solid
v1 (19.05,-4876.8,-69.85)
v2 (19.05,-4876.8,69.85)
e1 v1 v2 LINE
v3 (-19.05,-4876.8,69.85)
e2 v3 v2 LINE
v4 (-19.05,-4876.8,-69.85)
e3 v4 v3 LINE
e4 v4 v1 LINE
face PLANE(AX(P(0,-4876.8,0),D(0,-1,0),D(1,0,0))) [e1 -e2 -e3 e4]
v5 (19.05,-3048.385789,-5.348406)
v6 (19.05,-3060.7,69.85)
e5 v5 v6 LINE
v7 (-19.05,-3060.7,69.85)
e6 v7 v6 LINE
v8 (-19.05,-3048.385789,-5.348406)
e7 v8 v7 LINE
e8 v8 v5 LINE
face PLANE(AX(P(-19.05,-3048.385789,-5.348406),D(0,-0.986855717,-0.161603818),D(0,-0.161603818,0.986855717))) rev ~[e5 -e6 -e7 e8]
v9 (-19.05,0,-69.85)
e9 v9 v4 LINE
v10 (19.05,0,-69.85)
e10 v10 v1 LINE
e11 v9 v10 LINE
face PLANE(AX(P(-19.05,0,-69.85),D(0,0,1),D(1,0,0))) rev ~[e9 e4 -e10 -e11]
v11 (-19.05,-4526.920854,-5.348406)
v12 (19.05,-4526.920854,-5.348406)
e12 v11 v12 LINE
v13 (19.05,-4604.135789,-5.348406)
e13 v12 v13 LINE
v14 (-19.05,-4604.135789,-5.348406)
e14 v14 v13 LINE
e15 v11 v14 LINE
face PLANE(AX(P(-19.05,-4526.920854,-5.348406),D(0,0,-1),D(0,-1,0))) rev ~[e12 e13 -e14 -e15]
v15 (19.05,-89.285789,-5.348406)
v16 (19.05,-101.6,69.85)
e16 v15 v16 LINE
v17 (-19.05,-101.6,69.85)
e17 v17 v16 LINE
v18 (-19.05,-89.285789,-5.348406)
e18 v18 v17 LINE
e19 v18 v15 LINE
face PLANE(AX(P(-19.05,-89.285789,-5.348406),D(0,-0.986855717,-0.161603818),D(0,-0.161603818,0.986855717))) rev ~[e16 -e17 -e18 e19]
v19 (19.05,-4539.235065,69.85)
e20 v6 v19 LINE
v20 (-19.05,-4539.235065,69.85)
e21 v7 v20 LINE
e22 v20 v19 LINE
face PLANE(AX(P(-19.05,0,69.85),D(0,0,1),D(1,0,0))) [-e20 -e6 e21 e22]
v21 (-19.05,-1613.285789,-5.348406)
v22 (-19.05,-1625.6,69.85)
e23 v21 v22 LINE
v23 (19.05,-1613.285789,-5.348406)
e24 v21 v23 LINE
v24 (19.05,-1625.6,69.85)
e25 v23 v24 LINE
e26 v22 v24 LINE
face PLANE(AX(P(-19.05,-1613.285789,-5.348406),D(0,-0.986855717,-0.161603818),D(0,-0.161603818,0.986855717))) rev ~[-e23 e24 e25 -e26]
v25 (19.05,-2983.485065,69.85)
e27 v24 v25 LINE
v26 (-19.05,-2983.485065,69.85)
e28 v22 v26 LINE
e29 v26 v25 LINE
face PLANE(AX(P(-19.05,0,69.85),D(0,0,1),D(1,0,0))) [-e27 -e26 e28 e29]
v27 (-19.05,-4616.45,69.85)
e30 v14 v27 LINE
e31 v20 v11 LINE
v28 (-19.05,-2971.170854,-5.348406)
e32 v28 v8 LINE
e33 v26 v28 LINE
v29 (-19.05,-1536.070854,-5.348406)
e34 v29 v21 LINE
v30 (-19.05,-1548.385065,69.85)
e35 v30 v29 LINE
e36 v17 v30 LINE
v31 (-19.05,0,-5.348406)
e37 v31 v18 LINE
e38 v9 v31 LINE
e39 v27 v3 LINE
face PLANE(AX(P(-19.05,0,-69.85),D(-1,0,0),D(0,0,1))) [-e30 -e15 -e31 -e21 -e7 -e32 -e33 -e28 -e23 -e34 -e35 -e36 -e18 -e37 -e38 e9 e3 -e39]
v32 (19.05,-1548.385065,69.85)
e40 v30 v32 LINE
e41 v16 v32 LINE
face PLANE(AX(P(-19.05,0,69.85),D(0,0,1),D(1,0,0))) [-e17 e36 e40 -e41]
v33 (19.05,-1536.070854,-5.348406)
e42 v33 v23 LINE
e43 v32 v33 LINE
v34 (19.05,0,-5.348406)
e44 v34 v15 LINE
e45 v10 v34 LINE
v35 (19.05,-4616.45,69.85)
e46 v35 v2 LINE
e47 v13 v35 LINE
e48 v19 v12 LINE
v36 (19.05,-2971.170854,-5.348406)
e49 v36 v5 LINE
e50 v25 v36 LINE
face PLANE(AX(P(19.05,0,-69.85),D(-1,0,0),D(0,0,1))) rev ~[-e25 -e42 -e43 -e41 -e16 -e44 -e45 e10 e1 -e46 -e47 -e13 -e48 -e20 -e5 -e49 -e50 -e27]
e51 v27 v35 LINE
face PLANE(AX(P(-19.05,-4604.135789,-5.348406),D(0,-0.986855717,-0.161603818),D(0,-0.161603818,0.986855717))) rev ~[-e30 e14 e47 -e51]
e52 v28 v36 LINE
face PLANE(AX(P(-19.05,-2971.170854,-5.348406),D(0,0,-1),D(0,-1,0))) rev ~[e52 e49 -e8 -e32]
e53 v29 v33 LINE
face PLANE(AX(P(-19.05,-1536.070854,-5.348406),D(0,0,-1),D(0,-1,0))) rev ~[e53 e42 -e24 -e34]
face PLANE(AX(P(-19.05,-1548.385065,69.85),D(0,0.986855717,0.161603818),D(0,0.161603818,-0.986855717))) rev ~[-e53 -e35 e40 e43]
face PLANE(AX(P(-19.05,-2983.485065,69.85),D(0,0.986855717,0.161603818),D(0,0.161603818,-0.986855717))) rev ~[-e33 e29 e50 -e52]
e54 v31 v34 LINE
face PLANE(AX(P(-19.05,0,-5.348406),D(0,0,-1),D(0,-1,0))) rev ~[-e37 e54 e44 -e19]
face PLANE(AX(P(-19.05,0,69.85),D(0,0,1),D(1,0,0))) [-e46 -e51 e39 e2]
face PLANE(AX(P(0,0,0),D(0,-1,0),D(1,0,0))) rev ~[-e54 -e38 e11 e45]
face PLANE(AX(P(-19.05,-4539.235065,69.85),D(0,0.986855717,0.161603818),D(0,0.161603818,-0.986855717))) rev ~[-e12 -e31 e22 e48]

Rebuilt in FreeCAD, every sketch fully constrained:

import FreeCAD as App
import Part
import Sketcher
from FreeCAD import Vector
Q = App.Units.Quantity


def add_polygon(sketch, points):
    """Adds a closed chain of lines whose ends are joined by coincident constraints."""
    first, n = sketch.GeometryCount, len(points)
    for a, b in zip(points, points[1:] + points[:1]):
        sketch.addGeometry(Part.LineSegment(App.Vector(*a, 0), App.Vector(*b, 0)), False)
    for i in range(n):
        sketch.addConstraint(Sketcher.Constraint("Coincident", first + i, 2, first + (i + 1) % n, 1))

doc = App.newDocument("Part")
body = doc.addObject("PartDesign::Body", "Body")

sketch1 = body.newObject("Sketcher::SketchObject", "Sketch")
sketch1.AttachmentSupport = (doc.getObject("XZ_Plane"), [""])
sketch1.MapMode = "FlatFace"
add_polygon(sketch1, [(-19, 70), (-19, -70), (19, -70), (19, 70)])
sketch1.addConstraint(Sketcher.Constraint("Vertical", 0))
sketch1.addConstraint(Sketcher.Constraint("Horizontal", 1))
sketch1.addConstraint(Sketcher.Constraint("Vertical", 2))
sketch1.addConstraint(Sketcher.Constraint("Horizontal", 3))
sketch1.addConstraint(Sketcher.Constraint("Symmetric", 0, 2, 2, 2, -1, 1))
sketch1.addConstraint(Sketcher.Constraint("DistanceX", 1, 1, 1, 2, Q("1.5 in")))
sketch1.addConstraint(Sketcher.Constraint("DistanceY", 0, 2, 0, 1, Q("5.5 in")))
pad1 = body.newObject("PartDesign::Pad", "Pad")
pad1.Profile = sketch1
pad1.Length = Q("192 in")

sketch2 = body.newObject("Sketcher::SketchObject", "Sketch001")
sketch2.AttachmentSupport = (doc.getObject("YZ_Plane"), [""])
sketch2.MapMode = "FlatFace"
sketch2.AttachmentOffset = App.Placement(Vector(0, 0, -0.75 * 25.4), App.Rotation())
add_polygon(sketch2, [(-1626, 70), (-1548, 70), (-1536, -5), (-1613, -5)])
add_polygon(sketch2, [(-3061, 70), (-2983, 70), (-2971, -5), (-3048, -5)])
add_polygon(sketch2, [(-4616, 70), (-4539, 70), (-4527, -5), (-4604, -5)])
add_polygon(sketch2, [(-89, -5), (-102, 70), (0, 70), (0, -5)])
sketch2.addConstraint(Sketcher.Constraint("Horizontal", 0))
sketch2.addConstraint(Sketcher.Constraint("Horizontal", 2))
sketch2.addConstraint(Sketcher.Constraint("Horizontal", 4))
sketch2.addConstraint(Sketcher.Constraint("Horizontal", 6))
sketch2.addConstraint(Sketcher.Constraint("Horizontal", 8))
sketch2.addConstraint(Sketcher.Constraint("Horizontal", 10))
sketch2.addConstraint(Sketcher.Constraint("Horizontal", 13))
sketch2.addConstraint(Sketcher.Constraint("Vertical", 14))
sketch2.addConstraint(Sketcher.Constraint("Horizontal", 15))
sketch2.addConstraint(Sketcher.Constraint("PointOnObject", 13, 2, -2))
sketch2.addConstraint(Sketcher.Constraint("Parallel", 1, 3))
sketch2.addConstraint(Sketcher.Constraint("Parallel", 3, 5))
sketch2.addConstraint(Sketcher.Constraint("Parallel", 5, 7))
sketch2.addConstraint(Sketcher.Constraint("Parallel", 7, 9))
sketch2.addConstraint(Sketcher.Constraint("Parallel", 9, 11))
sketch2.addConstraint(Sketcher.Constraint("Parallel", 11, 12))
sketch2.addConstraint(Sketcher.Constraint("Horizontal", 3, 2, 4, 2))
sketch2.addConstraint(Sketcher.Constraint("Horizontal", 2, 2, 5, 2))
sketch2.addConstraint(Sketcher.Constraint("Horizontal", 7, 2, 8, 2))
sketch2.addConstraint(Sketcher.Constraint("Horizontal", 6, 2, 9, 2))
sketch2.addConstraint(Sketcher.Constraint("Horizontal", 11, 2, 12, 2))
sketch2.addConstraint(Sketcher.Constraint("Horizontal", 10, 2, 14, 2))
sketch2.addConstraint(Sketcher.Constraint("Equal", 2, 4))
sketch2.addConstraint(Sketcher.Constraint("Equal", 6, 8))
sketch2.addConstraint(Sketcher.Constraint("DistanceX", 13, 1, 13, 2, Q("4 in")))
sketch2.addConstraint(Sketcher.Constraint("Distance", 1, Q("3 in")))
sketch2.addConstraint(Sketcher.Constraint("DistanceX", 3, 2, -1, 1, Q("64 in")))
sketch2.addConstraint(Sketcher.Constraint("DistanceX", 7, 2, -1, 1, Q("120.5 in")))
sketch2.addConstraint(Sketcher.Constraint("Angle", 1, Q("-80.7 deg")))
sketch2.addConstraint(Sketcher.Constraint("DistanceY", -1, 1, 0, 2, Q("2.75 in")))
sketch2.addConstraint(Sketcher.Constraint("DistanceX", 11, 2, -1, 1, Q("181.75 in")))
sketch2.addConstraint(Sketcher.Constraint("DistanceX", 0, 1, 0, 2, 77.214935))
pocket1 = body.newObject("PartDesign::Pocket", "Pocket")
pocket1.Profile = sketch2
pocket1.Length = Q("10 in")
pocket1.Reversed = True

doc.recompute()
